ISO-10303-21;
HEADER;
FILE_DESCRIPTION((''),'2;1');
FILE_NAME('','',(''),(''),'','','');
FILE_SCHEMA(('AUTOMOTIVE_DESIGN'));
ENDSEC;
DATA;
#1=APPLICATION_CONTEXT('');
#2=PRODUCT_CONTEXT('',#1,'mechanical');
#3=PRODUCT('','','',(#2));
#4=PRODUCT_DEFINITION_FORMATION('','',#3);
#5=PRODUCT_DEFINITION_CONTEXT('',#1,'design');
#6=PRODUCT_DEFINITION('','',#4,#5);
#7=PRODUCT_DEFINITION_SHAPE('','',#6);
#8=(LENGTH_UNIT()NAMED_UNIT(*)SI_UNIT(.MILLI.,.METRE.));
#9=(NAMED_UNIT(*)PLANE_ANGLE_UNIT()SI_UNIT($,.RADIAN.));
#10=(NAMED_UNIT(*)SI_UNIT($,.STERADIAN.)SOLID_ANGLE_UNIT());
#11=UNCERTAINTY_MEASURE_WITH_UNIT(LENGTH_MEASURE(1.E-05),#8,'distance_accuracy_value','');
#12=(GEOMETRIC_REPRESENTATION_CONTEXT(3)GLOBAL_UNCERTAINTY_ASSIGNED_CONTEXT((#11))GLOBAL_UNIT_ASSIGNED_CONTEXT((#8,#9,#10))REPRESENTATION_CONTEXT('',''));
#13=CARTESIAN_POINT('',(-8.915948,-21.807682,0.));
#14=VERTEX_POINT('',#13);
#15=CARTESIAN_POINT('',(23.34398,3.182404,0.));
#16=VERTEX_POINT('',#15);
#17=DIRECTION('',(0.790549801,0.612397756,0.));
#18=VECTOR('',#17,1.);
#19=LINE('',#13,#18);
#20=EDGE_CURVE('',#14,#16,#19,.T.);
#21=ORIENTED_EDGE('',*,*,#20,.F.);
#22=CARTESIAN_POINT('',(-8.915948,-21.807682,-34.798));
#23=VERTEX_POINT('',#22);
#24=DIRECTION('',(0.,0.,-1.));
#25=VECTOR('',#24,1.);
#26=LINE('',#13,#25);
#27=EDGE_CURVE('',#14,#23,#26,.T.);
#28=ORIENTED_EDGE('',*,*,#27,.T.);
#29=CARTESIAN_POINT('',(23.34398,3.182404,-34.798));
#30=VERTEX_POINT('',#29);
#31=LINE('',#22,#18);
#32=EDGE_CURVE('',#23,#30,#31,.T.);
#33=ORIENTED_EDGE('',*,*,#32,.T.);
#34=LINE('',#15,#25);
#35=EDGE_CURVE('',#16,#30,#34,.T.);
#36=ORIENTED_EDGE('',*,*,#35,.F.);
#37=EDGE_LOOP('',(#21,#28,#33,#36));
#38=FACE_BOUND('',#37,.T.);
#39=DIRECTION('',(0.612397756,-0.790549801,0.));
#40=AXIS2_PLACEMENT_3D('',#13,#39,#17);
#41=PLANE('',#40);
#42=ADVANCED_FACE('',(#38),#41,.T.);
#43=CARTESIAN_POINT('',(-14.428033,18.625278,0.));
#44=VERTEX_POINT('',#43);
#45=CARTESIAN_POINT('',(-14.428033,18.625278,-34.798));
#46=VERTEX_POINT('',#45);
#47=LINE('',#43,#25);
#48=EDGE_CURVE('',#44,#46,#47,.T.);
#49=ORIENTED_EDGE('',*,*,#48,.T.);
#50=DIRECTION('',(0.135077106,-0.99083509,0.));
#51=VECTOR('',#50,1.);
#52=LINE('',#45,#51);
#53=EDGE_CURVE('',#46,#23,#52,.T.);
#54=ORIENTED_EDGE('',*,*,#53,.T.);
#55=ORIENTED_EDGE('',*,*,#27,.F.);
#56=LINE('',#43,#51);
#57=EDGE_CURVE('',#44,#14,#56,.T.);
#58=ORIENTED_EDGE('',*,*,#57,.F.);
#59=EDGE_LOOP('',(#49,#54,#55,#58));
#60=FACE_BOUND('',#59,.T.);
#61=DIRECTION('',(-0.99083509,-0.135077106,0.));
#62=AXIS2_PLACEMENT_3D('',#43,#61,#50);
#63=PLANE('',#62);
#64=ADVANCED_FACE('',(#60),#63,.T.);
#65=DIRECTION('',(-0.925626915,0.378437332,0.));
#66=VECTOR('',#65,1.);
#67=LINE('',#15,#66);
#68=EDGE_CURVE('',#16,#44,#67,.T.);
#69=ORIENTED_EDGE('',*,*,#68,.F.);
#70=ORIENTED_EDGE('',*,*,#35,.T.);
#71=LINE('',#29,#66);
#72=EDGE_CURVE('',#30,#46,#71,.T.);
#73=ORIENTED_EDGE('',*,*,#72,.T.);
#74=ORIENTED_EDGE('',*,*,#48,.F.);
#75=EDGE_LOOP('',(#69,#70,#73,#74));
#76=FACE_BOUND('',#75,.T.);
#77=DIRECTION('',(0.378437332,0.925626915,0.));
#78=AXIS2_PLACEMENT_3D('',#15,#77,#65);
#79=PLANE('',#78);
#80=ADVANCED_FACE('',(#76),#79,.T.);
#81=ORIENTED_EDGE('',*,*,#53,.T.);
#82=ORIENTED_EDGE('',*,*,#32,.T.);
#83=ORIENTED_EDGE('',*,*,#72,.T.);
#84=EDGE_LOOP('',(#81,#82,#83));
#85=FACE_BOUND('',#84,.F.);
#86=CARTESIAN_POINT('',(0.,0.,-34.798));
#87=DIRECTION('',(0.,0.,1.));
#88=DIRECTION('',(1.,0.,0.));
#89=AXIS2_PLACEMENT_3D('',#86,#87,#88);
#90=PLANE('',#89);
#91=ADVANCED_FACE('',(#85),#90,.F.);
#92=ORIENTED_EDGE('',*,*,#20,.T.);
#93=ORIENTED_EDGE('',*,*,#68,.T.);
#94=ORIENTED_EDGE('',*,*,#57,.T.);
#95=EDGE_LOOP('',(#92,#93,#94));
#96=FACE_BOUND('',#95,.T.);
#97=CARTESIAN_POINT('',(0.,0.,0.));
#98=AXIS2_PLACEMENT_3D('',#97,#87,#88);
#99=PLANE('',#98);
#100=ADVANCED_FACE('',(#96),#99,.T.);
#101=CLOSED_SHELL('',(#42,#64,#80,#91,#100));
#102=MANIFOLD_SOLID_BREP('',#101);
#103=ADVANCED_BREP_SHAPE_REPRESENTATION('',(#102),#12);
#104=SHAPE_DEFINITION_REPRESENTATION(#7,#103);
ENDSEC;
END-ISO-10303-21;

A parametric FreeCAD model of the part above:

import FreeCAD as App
import Part
import Sketcher


def add_polygon(sketch, points):
    """Adds a closed chain of lines whose ends are joined by coincident constraints."""
    first, n = sketch.GeometryCount, len(points)
    for a, b in zip(points, points[1:] + points[:1]):
        sketch.addGeometry(Part.LineSegment(App.Vector(*a, 0), App.Vector(*b, 0)), False)
    for i in range(n):
        sketch.addConstraint(Sketcher.Constraint("Coincident", first + i, 2, first + (i + 1) % n, 1))

doc = App.newDocument("Part")
params = doc.addObject("Spreadsheet::Sheet", "Params")
for row, (alias, value) in enumerate([
    ("pad1_length", "1.37 in"),
], start=1):
    params.set(f"A{row}", alias)
    params.set(f"B{row}", "=" + value)
    params.setAlias(f"B{row}", alias)

body = doc.addObject("PartDesign::Body", "Body")

# Sketch on XY plane
sketch1 = body.newObject("Sketcher::SketchObject", "Sketch")
sketch1.AttachmentSupport = (doc.getObject("XY_Plane"), [""])
sketch1.MapMode = "FlatFace"
add_polygon(sketch1, [(-8.915948, -21.807682), (23.34398, 3.182404), (-14.428033, 18.625278)])  # lines 0-2
sketch1.addConstraint([
    Sketcher.Constraint("Equal", 0, 1),
    Sketcher.Constraint("Equal", 1, 2),
    Sketcher.Constraint("Distance", 1, 40.806952),
    Sketcher.Constraint("DistanceX", -1, 1, 0, 2, 23.34398),
    Sketcher.Constraint("DistanceY", -1, 1, 1, 2, 18.625278),
    Sketcher.Constraint("DistanceY", 2, 2, -1, 1, 21.807682),
])
pad1 = body.newObject("PartDesign::Pad", "Pad")
pad1.Profile = sketch1
pad1.setExpression("Length", "Params.pad1_length")
pad1.Reversed = True

doc.recompute()
